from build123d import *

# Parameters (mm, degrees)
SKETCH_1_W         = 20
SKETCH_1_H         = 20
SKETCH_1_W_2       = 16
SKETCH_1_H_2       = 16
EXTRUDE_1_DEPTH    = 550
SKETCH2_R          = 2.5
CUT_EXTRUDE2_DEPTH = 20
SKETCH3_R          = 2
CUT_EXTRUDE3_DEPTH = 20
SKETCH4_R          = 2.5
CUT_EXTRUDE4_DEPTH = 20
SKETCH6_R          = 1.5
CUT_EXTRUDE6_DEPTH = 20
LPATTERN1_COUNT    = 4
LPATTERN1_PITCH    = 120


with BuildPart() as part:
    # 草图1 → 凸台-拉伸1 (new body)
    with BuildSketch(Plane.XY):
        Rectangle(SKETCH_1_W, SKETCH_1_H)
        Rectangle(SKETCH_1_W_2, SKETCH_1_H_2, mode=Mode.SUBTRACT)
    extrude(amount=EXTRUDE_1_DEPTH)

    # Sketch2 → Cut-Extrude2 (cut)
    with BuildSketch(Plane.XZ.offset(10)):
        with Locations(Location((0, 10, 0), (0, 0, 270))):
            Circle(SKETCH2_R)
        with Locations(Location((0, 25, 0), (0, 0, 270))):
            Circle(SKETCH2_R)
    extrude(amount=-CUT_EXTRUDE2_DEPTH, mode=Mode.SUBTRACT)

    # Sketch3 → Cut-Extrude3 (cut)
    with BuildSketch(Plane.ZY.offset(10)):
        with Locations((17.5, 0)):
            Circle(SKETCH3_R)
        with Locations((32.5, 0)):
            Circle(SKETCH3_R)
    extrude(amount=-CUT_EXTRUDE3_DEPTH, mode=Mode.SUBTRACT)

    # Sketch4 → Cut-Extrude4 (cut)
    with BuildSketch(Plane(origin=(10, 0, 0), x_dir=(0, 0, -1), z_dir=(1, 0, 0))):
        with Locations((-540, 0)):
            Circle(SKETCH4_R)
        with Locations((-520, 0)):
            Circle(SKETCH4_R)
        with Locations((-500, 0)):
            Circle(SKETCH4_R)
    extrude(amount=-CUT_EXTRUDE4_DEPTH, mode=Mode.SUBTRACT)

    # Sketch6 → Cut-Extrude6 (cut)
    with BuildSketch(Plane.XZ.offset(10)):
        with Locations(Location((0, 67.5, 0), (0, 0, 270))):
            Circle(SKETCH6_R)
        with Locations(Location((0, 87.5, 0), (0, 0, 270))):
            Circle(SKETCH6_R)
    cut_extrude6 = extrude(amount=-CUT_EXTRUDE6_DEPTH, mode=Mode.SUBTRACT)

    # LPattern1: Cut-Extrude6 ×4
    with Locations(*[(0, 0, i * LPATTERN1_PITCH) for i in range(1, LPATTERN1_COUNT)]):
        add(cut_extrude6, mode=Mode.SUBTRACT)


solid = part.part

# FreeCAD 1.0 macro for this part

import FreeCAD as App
import Part
import Sketcher
from FreeCAD import Vector
Q = App.Units.Quantity

doc = App.newDocument("Part")
body = doc.addObject("PartDesign::Body", "Body")

sketch1 = body.newObject("Sketcher::SketchObject", "Sketch")
sketch1.AttachmentSupport = (doc.getObject("XY_Plane"), [""])
sketch1.MapMode = "FlatFace"
sketch1.addGeometry(Part.LineSegment(Vector(-10, 10, 0), Vector(-10, -10, 0)), False)
sketch1.addGeometry(Part.LineSegment(Vector(-10, -10, 0), Vector(10, -10, 0)), False)
sketch1.addGeometry(Part.LineSegment(Vector(10, -10, 0), Vector(10, 10, 0)), False)
sketch1.addGeometry(Part.LineSegment(Vector(10, 10, 0), Vector(-10, 10, 0)), False)
sketch1.addGeometry(Part.LineSegment(Vector(8, -8, 0), Vector(-8, -8, 0)), False)
sketch1.addGeometry(Part.LineSegment(Vector(-8, -8, 0), Vector(-8, 8, 0)), False)
sketch1.addGeometry(Part.LineSegment(Vector(-8, 8, 0), Vector(8, 8, 0)), False)
sketch1.addGeometry(Part.LineSegment(Vector(8, 8, 0), Vector(8, -8, 0)), False)
sketch1.addConstraint(Sketcher.Constraint("Coincident", 0, 2, 1, 1))
sketch1.addConstraint(Sketcher.Constraint("Coincident", 1, 2, 2, 1))
sketch1.addConstraint(Sketcher.Constraint("Coincident", 2, 2, 3, 1))
sketch1.addConstraint(Sketcher.Constraint("Coincident", 3, 2, 0, 1))
sketch1.addConstraint(Sketcher.Constraint("Coincident", 4, 2, 5, 1))
sketch1.addConstraint(Sketcher.Constraint("Coincident", 5, 2, 6, 1))
sketch1.addConstraint(Sketcher.Constraint("Coincident", 6, 2, 7, 1))
sketch1.addConstraint(Sketcher.Constraint("Coincident", 7, 2, 4, 1))
sketch1.addConstraint(Sketcher.Constraint("Vertical", 0))
sketch1.addConstraint(Sketcher.Constraint("Horizontal", 1))
sketch1.addConstraint(Sketcher.Constraint("Vertical", 2))
sketch1.addConstraint(Sketcher.Constraint("Horizontal", 3))
sketch1.addConstraint(Sketcher.Constraint("Horizontal", 4))
sketch1.addConstraint(Sketcher.Constraint("Vertical", 5))
sketch1.addConstraint(Sketcher.Constraint("Horizontal", 6))
sketch1.addConstraint(Sketcher.Constraint("Vertical", 7))
sketch1.addConstraint(Sketcher.Constraint("Symmetric", 0, 2, 2, 2, -1, 1))
sketch1.addConstraint(Sketcher.Constraint("Symmetric", 4, 2, 6, 2, -1, 1))
sketch1.addConstraint(Sketcher.Constraint("Equal", 3, 0))
sketch1.addConstraint(Sketcher.Constraint("Equal", 6, 5))
sketch1.addConstraint(Sketcher.Constraint("DistanceX", 1, 1, 1, 2, Q("20 mm")))
sketch1.addConstraint(Sketcher.Constraint("DistanceX", 4, 2, 4, 1, Q("16 mm")))
pad1 = body.newObject("PartDesign::Pad", "Pad")
pad1.Profile = sketch1
pad1.Length = 550

sketch2 = body.newObject("Sketcher::SketchObject", "Sketch001")
sketch2.AttachmentSupport = (doc.getObject("XZ_Plane"), [""])
sketch2.MapMode = "FlatFace"
sketch2.AttachmentOffset = App.Placement(Vector(0, 0, 10), App.Rotation())
sketch2.addGeometry(Part.Circle(Vector(0, 10, 0), Vector(0, 0, 1), 2.5), False)
sketch2.addGeometry(Part.Circle(Vector(0, 25, 0), Vector(0, 0, 1), 2.5), False)
sketch2.addConstraint(Sketcher.Constraint("Equal", 0, 1))
sketch2.addConstraint(Sketcher.Constraint("PointOnObject", 0, 3, -2))
sketch2.addConstraint(Sketcher.Constraint("PointOnObject", 1, 3, -2))
sketch2.addConstraint(Sketcher.Constraint("Diameter", 0, Q("5 mm")))
sketch2.addConstraint(Sketcher.Constraint("DistanceY", -1, 1, 0, 3, Q("10 mm")))
sketch2.addConstraint(Sketcher.Constraint("DistanceY", -1, 1, 1, 3, Q("25 mm")))
pocket1 = body.newObject("PartDesign::Pocket", "Pocket")
pocket1.Profile = sketch2
pocket1.Length = 20

sketch3 = body.newObject("Sketcher::SketchObject", "Sketch002")
sketch3.AttachmentSupport = (doc.getObject("YZ_Plane"), [""])
sketch3.MapMode = "FlatFace"
sketch3.AttachmentOffset = App.Placement(Vector(0, 0, -10), App.Rotation())
sketch3.addGeometry(Part.Circle(Vector(0, 17.5, 0), Vector(0, 0, 1), 2), False)
sketch3.addGeometry(Part.Circle(Vector(0, 32.5, 0), Vector(0, 0, 1), 2), False)
sketch3.addConstraint(Sketcher.Constraint("Equal", 0, 1))
sketch3.addConstraint(Sketcher.Constraint("PointOnObject", 0, 3, -2))
sketch3.addConstraint(Sketcher.Constraint("PointOnObject", 1, 3, -2))
sketch3.addConstraint(Sketcher.Constraint("Diameter", 0, Q("4 mm")))
sketch3.addConstraint(Sketcher.Constraint("DistanceY", 0, 3, 1, 3, Q("15 mm")))
sketch3.addConstraint(Sketcher.Constraint("DistanceY", -1, 1, 0, 3, Q("17.5 mm")))
pocket2 = body.newObject("PartDesign::Pocket", "Pocket001")
pocket2.Profile = sketch3
pocket2.Length = 20
pocket2.Reversed = True

sketch4 = body.newObject("Sketcher::SketchObject", "Sketch003")
sketch4.AttachmentSupport = (doc.getObject("YZ_Plane"), [""])
sketch4.MapMode = "FlatFace"
sketch4.AttachmentOffset = App.Placement(Vector(0, 0, 10), App.Rotation())
sketch4.addGeometry(Part.Circle(Vector(0, 540, 0), Vector(0, 0, 1), 2.5), False)
sketch4.addGeometry(Part.Circle(Vector(0, 520, 0), Vector(0, 0, 1), 2.5), False)
sketch4.addGeometry(Part.Circle(Vector(0, 500, 0), Vector(0, 0, 1), 2.5), False)
sketch4.addConstraint(Sketcher.Constraint("Equal", 0, 1))
sketch4.addConstraint(Sketcher.Constraint("Equal", 1, 2))
sketch4.addConstraint(Sketcher.Constraint("PointOnObject", 0, 3, -2))
sketch4.addConstraint(Sketcher.Constraint("PointOnObject", 1, 3, -2))
sketch4.addConstraint(Sketcher.Constraint("PointOnObject", 2, 3, -2))
sketch4.addConstraint(Sketcher.Constraint("Diameter", 0, Q("5 mm")))
sketch4.addConstraint(Sketcher.Constraint("DistanceY", -1, 1, 0, 3, Q("540 mm")))
sketch4.addConstraint(Sketcher.Constraint("DistanceY", -1, 1, 1, 3, Q("520 mm")))
sketch4.addConstraint(Sketcher.Constraint("DistanceY", -1, 1, 2, 3, Q("500 mm")))
pocket3 = body.newObject("PartDesign::Pocket", "Pocket002")
pocket3.Profile = sketch4
pocket3.Length = 20

sketch5 = body.newObject("Sketcher::SketchObject", "Sketch004")
sketch5.AttachmentSupport = (doc.getObject("XZ_Plane"), [""])
sketch5.MapMode = "FlatFace"
sketch5.AttachmentOffset = App.Placement(Vector(0, 0, 10), App.Rotation())
sketch5.addGeometry(Part.Circle(Vector(0, 67.5, 0), Vector(0, 0, 1), 1.5), False)
sketch5.addGeometry(Part.Circle(Vector(0, 87.5, 0), Vector(0, 0, 1), 1.5), False)
sketch5.addConstraint(Sketcher.Constraint("Equal", 0, 1))
sketch5.addConstraint(Sketcher.Constraint("PointOnObject", 0, 3, -2))
sketch5.addConstraint(Sketcher.Constraint("PointOnObject", 1, 3, -2))
sketch5.addConstraint(Sketcher.Constraint("Diameter", 0, Q("3 mm")))
sketch5.addConstraint(Sketcher.Constraint("DistanceY", 0, 3, 1, 3, Q("20 mm")))
sketch5.addConstraint(Sketcher.Constraint("DistanceY", -1, 1, 0, 3, Q("67.5 mm")))
pocket4 = body.newObject("PartDesign::Pocket", "Pocket003")
pocket4.Profile = sketch5
pocket4.Length = 20
doc.recompute()

linearpattern = body.newObject("PartDesign::LinearPattern", "LinearPattern")
linearpattern.Originals = [pocket4]
linearpattern.Direction = (doc.getObject("Z_Axis"), [""])
linearpattern.Mode = "offset"
linearpattern.Offset = 120
linearpattern.Occurrences = 4
body.Tip = linearpattern

doc.recompute()
